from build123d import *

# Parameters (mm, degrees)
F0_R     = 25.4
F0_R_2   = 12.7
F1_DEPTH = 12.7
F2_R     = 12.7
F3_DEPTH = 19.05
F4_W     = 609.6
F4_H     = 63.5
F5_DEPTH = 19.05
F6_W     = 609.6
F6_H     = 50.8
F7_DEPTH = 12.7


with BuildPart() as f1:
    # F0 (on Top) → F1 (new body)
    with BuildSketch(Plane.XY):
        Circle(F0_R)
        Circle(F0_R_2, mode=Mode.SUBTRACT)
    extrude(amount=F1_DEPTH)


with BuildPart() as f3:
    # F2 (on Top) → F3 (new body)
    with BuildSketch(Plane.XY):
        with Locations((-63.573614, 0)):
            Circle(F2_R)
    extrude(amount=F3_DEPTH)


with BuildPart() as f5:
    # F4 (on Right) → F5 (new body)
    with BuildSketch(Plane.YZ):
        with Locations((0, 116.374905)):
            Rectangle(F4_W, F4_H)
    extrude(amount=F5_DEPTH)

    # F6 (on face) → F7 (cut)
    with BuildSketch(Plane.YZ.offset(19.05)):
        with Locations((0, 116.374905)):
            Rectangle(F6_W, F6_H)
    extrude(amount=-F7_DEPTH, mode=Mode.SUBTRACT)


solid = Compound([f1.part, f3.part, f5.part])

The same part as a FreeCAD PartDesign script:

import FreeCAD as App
import Part
import Sketcher
Q = App.Units.Quantity


def add_polygon(sketch, points):
    """Adds a closed chain of lines whose ends are joined by coincident constraints."""
    first, n = sketch.GeometryCount, len(points)
    for a, b in zip(points, points[1:] + points[:1]):
        sketch.addGeometry(Part.LineSegment(App.Vector(*a, 0), App.Vector(*b, 0)), False)
    for i in range(n):
        sketch.addConstraint(Sketcher.Constraint("Coincident", first + i, 2, first + (i + 1) % n, 1))

doc = App.newDocument("Part")
params = doc.addObject("Spreadsheet::Sheet", "Params")
for row, (alias, value) in enumerate([
    ("sketch1_diameter", "2 in"),
    ("sketch1_diameter2", "1 in"),
    ("pad1_length", "0.5 in"),
    ("sketch2_diameter", "1 in"),
    ("pad2_length", "0.75 in"),
    ("sketch3_width", "24 in"),
    ("sketch3_height", "2.5 in"),
    ("pad3_length", "0.75 in"),
    ("sketch4_width", "24 in"),
    ("sketch4_height", "2 in"),
    ("pocket1_length", "0.5 in"),
], start=1):
    params.set(f"A{row}", alias)
    params.set(f"B{row}", "=" + value)
    params.setAlias(f"B{row}", alias)

body = doc.addObject("PartDesign::Body", "Body")

sketch1 = body.newObject("Sketcher::SketchObject", "Sketch")
sketch1.AttachmentSupport = (doc.getObject("XY_Plane"), [""])
sketch1.MapMode = "FlatFace"
sketch1.addGeometry(Part.Circle(App.Vector(0, 0, 0), App.Vector(0, 0, 1), 25), False)
sketch1.addGeometry(Part.Circle(App.Vector(0, 0, 0), App.Vector(0, 0, 1), 13), False)
sketch1.addConstraint(Sketcher.Constraint("Coincident", 0, 3, -1, 1))
sketch1.addConstraint(Sketcher.Constraint("Coincident", 1, 3, -1, 1))
sketch1.addConstraint(Sketcher.Constraint("Diameter", 0, Q("2 in")))
sketch1.addConstraint(Sketcher.Constraint("Diameter", 1, Q("1 in")))
sketch1.setExpression("Constraints[2]", "Params.sketch1_diameter")
sketch1.setExpression("Constraints[3]", "Params.sketch1_diameter2")
pad1 = body.newObject("PartDesign::Pad", "Pad")
pad1.Profile = sketch1
pad1.setExpression("Length", "Params.pad1_length")
body2 = doc.addObject("PartDesign::Body", "Body001")

sketch2 = body2.newObject("Sketcher::SketchObject", "Sketch001")
sketch2.AttachmentSupport = (doc.getObject("XY_Plane001"), [""])
sketch2.MapMode = "FlatFace"
sketch2.addGeometry(Part.Circle(App.Vector(-64, 0, 0), App.Vector(0, 0, 1), 13), False)
sketch2.addConstraint(Sketcher.Constraint("PointOnObject", 0, 3, -1))
sketch2.addConstraint(Sketcher.Constraint("Diameter", 0, Q("1 in")))
sketch2.addConstraint(Sketcher.Constraint("DistanceX", 0, 3, -1, 1, Q("63.573614 mm")))
sketch2.setExpression("Constraints[1]", "Params.sketch2_diameter")
pad2 = body2.newObject("PartDesign::Pad", "Pad001")
pad2.Profile = sketch2
pad2.setExpression("Length", "Params.pad2_length")
body3 = doc.addObject("PartDesign::Body", "Body002")

sketch3 = body3.newObject("Sketcher::SketchObject", "Sketch002")
sketch3.AttachmentSupport = (doc.getObject("YZ_Plane002"), [""])
sketch3.MapMode = "FlatFace"
add_polygon(sketch3, [(-305, 148), (-305, 85), (305, 85), (305, 148)])
sketch3.addConstraint(Sketcher.Constraint("Vertical", 0))
sketch3.addConstraint(Sketcher.Constraint("Horizontal", 1))
sketch3.addConstraint(Sketcher.Constraint("Vertical", 2))
sketch3.addConstraint(Sketcher.Constraint("Horizontal", 3))
sketch3.addConstraint(Sketcher.Constraint("DistanceX", 1, 1, 1, 2, Q("24 in")))
sketch3.addConstraint(Sketcher.Constraint("DistanceY", 0, 2, 0, 1, Q("2.5 in")))
sketch3.addConstraint(Sketcher.Constraint("DistanceX", 0, 2, -1, 1, Q("12 in")))
sketch3.addConstraint(Sketcher.Constraint("DistanceY", -1, 1, 0, 2, Q("84.624905 mm")))
sketch3.setExpression("Constraints[8]", "Params.sketch3_width")
sketch3.setExpression("Constraints[9]", "Params.sketch3_height")
pad3 = body3.newObject("PartDesign::Pad", "Pad002")
pad3.Profile = sketch3
pad3.setExpression("Length", "Params.pad3_length")

sketch4 = body3.newObject("Sketcher::SketchObject", "Sketch003")
sketch4.AttachmentSupport = (doc.getObject("YZ_Plane002"), [""])
sketch4.MapMode = "FlatFace"
sketch4.AttachmentOffset = App.Placement(App.Vector(0, 0, 0.75 * 25.4), App.Rotation())
add_polygon(sketch4, [(-305, 142), (-305, 91), (305, 91), (305, 142)])
sketch4.addConstraint(Sketcher.Constraint("Vertical", 0))
sketch4.addConstraint(Sketcher.Constraint("Horizontal", 1))
sketch4.addConstraint(Sketcher.Constraint("Vertical", 2))
sketch4.addConstraint(Sketcher.Constraint("Horizontal", 3))
sketch4.addConstraint(Sketcher.Constraint("DistanceX", 1, 1, 1, 2, Q("24 in")))
sketch4.addConstraint(Sketcher.Constraint("DistanceY", 0, 2, 0, 1, Q("2 in")))
sketch4.addConstraint(Sketcher.Constraint("DistanceX", 0, 2, -1, 1, Q("12 in")))
sketch4.addConstraint(Sketcher.Constraint("DistanceY", -1, 1, 0, 2, Q("90.974905 mm")))
sketch4.setExpression("Constraints[8]", "Params.sketch4_width")
sketch4.setExpression("Constraints[9]", "Params.sketch4_height")
pocket1 = body3.newObject("PartDesign::Pocket", "Pocket")
pocket1.Profile = sketch4
pocket1.setExpression("Length", "Params.pocket1_length")

doc.recompute()
